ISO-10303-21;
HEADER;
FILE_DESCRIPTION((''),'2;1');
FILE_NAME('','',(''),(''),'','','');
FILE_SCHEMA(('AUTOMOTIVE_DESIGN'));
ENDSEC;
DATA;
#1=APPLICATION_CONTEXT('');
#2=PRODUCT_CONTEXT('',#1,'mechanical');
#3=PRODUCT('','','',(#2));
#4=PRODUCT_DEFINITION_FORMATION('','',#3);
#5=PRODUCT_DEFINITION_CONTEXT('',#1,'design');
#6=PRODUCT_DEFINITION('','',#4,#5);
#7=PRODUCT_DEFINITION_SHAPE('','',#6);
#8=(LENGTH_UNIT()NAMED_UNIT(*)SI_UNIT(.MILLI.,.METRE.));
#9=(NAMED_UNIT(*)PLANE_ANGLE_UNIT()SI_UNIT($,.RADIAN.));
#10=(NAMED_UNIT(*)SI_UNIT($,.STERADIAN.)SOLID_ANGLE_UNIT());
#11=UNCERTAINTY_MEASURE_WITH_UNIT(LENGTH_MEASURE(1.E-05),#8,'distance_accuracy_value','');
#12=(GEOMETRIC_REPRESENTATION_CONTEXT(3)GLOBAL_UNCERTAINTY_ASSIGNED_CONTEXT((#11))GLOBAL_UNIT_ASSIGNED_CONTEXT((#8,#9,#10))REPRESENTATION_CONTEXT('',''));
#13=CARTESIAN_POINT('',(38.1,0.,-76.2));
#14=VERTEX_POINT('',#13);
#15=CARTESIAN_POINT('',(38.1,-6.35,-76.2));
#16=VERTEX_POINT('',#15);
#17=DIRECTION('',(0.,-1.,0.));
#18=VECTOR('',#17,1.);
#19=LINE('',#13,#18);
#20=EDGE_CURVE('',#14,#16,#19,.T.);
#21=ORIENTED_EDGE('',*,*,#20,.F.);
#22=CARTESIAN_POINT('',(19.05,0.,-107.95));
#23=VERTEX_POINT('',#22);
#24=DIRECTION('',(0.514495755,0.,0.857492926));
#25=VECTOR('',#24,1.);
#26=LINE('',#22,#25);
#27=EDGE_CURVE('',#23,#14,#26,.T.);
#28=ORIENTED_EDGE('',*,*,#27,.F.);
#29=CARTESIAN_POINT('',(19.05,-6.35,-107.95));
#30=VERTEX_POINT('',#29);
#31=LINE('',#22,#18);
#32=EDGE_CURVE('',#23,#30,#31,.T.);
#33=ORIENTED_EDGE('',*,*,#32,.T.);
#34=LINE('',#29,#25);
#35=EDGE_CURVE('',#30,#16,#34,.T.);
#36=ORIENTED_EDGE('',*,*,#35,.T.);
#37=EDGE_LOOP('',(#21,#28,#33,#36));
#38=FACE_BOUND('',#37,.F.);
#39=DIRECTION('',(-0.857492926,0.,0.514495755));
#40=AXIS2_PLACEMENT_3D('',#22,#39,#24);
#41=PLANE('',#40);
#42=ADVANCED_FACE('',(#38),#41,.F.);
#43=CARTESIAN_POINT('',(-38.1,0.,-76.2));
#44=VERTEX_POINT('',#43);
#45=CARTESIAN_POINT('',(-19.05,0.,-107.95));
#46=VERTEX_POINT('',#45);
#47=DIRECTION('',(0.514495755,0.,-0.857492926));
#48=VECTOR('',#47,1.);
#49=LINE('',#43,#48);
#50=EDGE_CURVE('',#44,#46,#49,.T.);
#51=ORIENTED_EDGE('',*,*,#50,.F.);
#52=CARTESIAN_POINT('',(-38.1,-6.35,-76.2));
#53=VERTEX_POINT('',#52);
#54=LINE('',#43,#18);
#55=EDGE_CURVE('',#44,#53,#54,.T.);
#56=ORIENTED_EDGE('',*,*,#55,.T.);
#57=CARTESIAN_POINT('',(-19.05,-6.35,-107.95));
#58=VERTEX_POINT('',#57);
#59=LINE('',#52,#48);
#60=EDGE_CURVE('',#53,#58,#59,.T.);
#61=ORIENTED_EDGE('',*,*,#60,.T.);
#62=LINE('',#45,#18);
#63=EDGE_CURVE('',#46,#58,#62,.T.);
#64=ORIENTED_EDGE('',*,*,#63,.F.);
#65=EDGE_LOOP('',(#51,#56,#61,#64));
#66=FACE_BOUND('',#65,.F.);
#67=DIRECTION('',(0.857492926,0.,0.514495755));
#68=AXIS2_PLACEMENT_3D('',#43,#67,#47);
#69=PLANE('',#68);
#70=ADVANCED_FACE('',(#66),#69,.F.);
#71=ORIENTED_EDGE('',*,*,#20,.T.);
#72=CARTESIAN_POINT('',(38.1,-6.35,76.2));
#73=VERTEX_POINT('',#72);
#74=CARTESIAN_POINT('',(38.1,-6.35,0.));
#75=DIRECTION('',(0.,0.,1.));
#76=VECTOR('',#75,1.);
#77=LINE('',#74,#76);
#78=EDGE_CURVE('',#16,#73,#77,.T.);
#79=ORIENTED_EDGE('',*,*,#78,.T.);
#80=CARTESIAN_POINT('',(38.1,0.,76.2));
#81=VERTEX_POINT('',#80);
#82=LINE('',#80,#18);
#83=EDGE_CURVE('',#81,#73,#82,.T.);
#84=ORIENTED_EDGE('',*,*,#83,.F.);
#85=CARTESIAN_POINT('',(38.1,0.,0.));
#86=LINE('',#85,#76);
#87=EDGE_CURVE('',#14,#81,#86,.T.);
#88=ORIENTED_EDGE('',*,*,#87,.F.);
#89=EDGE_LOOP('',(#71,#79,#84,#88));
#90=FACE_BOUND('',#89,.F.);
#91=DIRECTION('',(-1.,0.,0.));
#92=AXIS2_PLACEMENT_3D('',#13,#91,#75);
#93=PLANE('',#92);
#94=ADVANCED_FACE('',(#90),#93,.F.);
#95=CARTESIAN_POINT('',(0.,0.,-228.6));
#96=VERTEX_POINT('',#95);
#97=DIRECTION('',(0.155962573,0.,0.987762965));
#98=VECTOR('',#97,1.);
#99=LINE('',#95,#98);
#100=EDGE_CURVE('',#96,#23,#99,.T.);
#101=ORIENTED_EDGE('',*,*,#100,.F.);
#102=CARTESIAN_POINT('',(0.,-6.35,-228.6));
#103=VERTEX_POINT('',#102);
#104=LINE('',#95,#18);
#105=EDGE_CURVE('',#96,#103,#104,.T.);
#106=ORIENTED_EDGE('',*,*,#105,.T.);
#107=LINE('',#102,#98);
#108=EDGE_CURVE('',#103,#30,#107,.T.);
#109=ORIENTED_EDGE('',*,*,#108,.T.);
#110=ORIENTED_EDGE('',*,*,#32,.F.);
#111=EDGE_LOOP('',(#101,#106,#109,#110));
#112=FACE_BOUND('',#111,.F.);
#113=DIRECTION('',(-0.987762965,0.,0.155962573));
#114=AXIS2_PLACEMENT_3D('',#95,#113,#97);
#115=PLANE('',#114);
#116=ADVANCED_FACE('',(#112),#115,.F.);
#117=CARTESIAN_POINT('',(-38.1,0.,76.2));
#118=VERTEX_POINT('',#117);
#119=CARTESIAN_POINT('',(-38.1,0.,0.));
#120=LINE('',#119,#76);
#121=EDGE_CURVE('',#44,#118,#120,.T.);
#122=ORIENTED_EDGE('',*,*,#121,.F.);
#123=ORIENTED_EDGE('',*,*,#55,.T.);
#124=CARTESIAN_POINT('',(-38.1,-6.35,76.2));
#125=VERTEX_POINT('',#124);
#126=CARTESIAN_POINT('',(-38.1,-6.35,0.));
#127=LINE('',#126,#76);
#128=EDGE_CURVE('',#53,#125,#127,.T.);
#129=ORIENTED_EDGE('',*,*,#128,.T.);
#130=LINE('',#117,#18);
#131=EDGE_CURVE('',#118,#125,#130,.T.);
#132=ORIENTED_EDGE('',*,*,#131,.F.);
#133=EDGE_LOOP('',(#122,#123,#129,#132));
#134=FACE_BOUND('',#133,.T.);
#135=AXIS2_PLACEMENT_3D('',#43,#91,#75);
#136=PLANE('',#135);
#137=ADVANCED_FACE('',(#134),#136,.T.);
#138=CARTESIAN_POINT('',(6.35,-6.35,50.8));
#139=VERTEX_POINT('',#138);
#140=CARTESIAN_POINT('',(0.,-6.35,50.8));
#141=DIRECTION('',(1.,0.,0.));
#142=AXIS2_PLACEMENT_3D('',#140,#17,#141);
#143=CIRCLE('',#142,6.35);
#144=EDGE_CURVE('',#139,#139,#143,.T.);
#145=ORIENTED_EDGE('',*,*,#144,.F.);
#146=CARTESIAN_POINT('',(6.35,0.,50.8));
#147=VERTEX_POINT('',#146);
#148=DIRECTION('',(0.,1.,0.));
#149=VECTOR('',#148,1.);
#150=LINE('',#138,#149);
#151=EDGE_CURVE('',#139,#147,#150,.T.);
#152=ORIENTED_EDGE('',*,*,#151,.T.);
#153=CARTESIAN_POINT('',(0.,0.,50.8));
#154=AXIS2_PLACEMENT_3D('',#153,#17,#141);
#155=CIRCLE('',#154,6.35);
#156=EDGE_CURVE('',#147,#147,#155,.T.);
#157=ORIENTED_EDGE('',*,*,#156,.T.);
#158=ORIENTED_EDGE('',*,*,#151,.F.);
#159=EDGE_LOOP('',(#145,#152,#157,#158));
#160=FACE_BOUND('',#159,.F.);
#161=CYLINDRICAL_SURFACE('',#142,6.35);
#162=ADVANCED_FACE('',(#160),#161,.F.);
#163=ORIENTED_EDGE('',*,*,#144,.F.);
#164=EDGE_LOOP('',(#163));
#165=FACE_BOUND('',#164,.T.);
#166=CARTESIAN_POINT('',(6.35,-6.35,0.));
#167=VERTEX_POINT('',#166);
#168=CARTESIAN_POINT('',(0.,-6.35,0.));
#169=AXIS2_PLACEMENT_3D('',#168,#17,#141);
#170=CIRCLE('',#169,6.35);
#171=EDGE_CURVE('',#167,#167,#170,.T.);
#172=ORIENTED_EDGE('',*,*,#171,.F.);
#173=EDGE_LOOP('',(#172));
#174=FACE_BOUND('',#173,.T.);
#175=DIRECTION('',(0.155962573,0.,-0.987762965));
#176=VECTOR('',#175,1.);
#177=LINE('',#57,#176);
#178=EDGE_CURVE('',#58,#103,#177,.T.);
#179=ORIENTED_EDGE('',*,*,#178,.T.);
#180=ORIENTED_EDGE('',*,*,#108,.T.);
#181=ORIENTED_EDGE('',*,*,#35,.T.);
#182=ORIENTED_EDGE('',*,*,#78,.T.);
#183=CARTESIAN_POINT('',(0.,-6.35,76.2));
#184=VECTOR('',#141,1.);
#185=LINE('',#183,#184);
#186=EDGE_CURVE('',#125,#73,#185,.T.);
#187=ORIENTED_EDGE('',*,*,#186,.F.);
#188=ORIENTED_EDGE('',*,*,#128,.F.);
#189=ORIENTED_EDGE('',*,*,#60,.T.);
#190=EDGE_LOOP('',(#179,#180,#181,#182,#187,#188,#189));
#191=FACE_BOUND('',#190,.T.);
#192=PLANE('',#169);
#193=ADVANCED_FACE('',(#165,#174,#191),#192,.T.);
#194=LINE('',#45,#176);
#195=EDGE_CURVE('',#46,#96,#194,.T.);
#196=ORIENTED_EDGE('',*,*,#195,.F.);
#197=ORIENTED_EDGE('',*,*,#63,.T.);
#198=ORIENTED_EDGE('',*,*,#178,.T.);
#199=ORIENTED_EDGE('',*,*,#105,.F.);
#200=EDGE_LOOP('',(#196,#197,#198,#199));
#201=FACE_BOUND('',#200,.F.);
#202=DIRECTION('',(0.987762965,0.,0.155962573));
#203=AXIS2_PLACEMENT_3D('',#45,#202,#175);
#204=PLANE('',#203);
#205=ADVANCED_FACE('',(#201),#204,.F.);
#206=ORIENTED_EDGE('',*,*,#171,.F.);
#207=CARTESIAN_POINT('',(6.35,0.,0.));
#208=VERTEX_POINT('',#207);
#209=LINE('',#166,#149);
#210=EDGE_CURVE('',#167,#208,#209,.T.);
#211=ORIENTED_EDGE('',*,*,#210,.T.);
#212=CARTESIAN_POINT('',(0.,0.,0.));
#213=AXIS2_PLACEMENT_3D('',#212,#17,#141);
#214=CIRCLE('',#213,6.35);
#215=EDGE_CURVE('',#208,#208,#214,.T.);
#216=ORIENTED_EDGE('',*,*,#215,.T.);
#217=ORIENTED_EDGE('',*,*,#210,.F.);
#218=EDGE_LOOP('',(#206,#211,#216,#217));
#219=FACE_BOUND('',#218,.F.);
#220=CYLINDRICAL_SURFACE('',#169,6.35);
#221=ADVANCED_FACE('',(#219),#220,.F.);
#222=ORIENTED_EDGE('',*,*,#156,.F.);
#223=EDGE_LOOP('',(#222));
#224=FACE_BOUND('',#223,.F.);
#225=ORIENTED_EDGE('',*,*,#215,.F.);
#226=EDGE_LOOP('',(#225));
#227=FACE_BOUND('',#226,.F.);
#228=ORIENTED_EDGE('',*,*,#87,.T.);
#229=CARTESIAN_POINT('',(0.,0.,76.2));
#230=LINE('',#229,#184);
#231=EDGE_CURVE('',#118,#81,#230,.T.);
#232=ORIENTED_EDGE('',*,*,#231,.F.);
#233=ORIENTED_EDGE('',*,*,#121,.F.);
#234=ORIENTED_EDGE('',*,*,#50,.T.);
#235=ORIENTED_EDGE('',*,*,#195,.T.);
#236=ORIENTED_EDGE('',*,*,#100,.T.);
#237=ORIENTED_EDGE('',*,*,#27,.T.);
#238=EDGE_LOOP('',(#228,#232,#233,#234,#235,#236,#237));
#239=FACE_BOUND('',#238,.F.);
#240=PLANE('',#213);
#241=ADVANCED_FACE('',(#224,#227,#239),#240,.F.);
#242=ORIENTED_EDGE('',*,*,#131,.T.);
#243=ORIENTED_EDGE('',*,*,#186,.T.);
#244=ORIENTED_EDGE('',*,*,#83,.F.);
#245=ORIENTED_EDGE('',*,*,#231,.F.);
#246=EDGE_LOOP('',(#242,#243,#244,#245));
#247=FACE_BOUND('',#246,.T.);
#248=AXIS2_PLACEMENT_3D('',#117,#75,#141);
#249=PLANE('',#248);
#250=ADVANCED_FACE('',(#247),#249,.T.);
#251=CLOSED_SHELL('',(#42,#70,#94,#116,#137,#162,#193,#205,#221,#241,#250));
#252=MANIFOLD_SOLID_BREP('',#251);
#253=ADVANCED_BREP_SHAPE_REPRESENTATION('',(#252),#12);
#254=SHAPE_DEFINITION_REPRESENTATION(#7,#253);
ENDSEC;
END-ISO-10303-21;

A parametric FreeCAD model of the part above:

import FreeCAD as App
import Part
import Sketcher

V = App.Vector
Q = App.Units.Quantity


def add_polygon(sketch, points):
    """Adds a closed chain of lines whose ends are joined by coincident constraints."""
    first, n = sketch.GeometryCount, len(points)
    for a, b in zip(points, points[1:] + points[:1]):
        sketch.addGeometry(Part.LineSegment(App.Vector(*a, 0), App.Vector(*b, 0)), False)
    for i in range(n):
        sketch.addConstraint(Sketcher.Constraint("Coincident", first + i, 2, first + (i + 1) % n, 1))

doc = App.newDocument("Part")
params = doc.addObject("Spreadsheet::Sheet", "Params")
for row, (alias, value) in enumerate([
    ("sketch1_width", "3 in"),
    ("sketch1_height", "6 in"),
    ("pad1_length", "0.25 in"),
    ("sketch2_diameter", "0.5 in"),
    ("pocket1_length", "1 in"),
], start=1):
    params.set(f"A{row}", alias)
    params.set(f"B{row}", "=" + value)
    params.setAlias(f"B{row}", alias)

body = doc.addObject("PartDesign::Body", "Body")

sketch1 = body.newObject("Sketcher::SketchObject", "Sketch")
sketch1.AttachmentSupport = (doc.getObject("XZ_Plane"), [""])
sketch1.MapMode = "FlatFace"
add_polygon(sketch1, [(-38, 76), (-38, -76), (-19, -108), (0, -229), (19, -108), (38, -76), (38, 76)])
sketch1.addConstraint([
    Sketcher.Constraint("Vertical", 0),
    Sketcher.Constraint("Vertical", 5),
    Sketcher.Constraint("Horizontal", 6),
    Sketcher.Constraint("Symmetric", 0, 2, 5, 2, -1, 1),
    Sketcher.Constraint("Symmetric", 1, 2, 3, 2, -2),
    Sketcher.Constraint("PointOnObject", 2, 2, -2),
    Sketcher.Constraint("Horizontal", 0, 2, 4, 2),
    Sketcher.Constraint("DistanceX", 6, 2, 6, 1, Q("3 in")),
    Sketcher.Constraint("DistanceY", 0, 2, 0, 1, Q("6 in")),
    Sketcher.Constraint("DistanceY", 2, 2, -1, 1, Q("9 in")),
    Sketcher.Constraint("DistanceX", 1, 2, 3, 2, Q("1.5 in")),
    Sketcher.Constraint("DistanceY", 1, 2, -1, 1, Q("4.25 in")),
])
sketch1.setExpression("Constraints[14]", "Params.sketch1_width")
sketch1.setExpression("Constraints[15]", "Params.sketch1_height")
pad1 = body.newObject("PartDesign::Pad", "Pad")
pad1.Profile = sketch1
pad1.setExpression("Length", "Params.pad1_length")

sketch2 = body.newObject("Sketcher::SketchObject", "Sketch001")
sketch2.AttachmentSupport = (doc.getObject("XZ_Plane"), [""])
sketch2.MapMode = "FlatFace"
sketch2.AttachmentOffset = App.Placement(V(0, 0, 0.25 * 25.4), App.Rotation())
sketch2.addGeometry([
    Part.Circle(V(0, 51, 0), V(0, 0, 1), 6),
    Part.Circle(V(0, 0, 0), V(0, 0, 1), 6),
], False)
sketch2.addConstraint([
    Sketcher.Constraint("Coincident", 1, 3, -1, 1),
    Sketcher.Constraint("Equal", 0, 1),
    Sketcher.Constraint("PointOnObject", 0, 3, -2),
    Sketcher.Constraint("Diameter", 0, Q("0.5 in")),
    Sketcher.Constraint("DistanceY", -1, 1, 0, 3, Q("2 in")),
])
sketch2.setExpression("Constraints[3]", "Params.sketch2_diameter")
pocket1 = body.newObject("PartDesign::Pocket", "Pocket")
pocket1.Profile = sketch2
pocket1.setExpression("Length", "Params.pocket1_length")

doc.recompute()
